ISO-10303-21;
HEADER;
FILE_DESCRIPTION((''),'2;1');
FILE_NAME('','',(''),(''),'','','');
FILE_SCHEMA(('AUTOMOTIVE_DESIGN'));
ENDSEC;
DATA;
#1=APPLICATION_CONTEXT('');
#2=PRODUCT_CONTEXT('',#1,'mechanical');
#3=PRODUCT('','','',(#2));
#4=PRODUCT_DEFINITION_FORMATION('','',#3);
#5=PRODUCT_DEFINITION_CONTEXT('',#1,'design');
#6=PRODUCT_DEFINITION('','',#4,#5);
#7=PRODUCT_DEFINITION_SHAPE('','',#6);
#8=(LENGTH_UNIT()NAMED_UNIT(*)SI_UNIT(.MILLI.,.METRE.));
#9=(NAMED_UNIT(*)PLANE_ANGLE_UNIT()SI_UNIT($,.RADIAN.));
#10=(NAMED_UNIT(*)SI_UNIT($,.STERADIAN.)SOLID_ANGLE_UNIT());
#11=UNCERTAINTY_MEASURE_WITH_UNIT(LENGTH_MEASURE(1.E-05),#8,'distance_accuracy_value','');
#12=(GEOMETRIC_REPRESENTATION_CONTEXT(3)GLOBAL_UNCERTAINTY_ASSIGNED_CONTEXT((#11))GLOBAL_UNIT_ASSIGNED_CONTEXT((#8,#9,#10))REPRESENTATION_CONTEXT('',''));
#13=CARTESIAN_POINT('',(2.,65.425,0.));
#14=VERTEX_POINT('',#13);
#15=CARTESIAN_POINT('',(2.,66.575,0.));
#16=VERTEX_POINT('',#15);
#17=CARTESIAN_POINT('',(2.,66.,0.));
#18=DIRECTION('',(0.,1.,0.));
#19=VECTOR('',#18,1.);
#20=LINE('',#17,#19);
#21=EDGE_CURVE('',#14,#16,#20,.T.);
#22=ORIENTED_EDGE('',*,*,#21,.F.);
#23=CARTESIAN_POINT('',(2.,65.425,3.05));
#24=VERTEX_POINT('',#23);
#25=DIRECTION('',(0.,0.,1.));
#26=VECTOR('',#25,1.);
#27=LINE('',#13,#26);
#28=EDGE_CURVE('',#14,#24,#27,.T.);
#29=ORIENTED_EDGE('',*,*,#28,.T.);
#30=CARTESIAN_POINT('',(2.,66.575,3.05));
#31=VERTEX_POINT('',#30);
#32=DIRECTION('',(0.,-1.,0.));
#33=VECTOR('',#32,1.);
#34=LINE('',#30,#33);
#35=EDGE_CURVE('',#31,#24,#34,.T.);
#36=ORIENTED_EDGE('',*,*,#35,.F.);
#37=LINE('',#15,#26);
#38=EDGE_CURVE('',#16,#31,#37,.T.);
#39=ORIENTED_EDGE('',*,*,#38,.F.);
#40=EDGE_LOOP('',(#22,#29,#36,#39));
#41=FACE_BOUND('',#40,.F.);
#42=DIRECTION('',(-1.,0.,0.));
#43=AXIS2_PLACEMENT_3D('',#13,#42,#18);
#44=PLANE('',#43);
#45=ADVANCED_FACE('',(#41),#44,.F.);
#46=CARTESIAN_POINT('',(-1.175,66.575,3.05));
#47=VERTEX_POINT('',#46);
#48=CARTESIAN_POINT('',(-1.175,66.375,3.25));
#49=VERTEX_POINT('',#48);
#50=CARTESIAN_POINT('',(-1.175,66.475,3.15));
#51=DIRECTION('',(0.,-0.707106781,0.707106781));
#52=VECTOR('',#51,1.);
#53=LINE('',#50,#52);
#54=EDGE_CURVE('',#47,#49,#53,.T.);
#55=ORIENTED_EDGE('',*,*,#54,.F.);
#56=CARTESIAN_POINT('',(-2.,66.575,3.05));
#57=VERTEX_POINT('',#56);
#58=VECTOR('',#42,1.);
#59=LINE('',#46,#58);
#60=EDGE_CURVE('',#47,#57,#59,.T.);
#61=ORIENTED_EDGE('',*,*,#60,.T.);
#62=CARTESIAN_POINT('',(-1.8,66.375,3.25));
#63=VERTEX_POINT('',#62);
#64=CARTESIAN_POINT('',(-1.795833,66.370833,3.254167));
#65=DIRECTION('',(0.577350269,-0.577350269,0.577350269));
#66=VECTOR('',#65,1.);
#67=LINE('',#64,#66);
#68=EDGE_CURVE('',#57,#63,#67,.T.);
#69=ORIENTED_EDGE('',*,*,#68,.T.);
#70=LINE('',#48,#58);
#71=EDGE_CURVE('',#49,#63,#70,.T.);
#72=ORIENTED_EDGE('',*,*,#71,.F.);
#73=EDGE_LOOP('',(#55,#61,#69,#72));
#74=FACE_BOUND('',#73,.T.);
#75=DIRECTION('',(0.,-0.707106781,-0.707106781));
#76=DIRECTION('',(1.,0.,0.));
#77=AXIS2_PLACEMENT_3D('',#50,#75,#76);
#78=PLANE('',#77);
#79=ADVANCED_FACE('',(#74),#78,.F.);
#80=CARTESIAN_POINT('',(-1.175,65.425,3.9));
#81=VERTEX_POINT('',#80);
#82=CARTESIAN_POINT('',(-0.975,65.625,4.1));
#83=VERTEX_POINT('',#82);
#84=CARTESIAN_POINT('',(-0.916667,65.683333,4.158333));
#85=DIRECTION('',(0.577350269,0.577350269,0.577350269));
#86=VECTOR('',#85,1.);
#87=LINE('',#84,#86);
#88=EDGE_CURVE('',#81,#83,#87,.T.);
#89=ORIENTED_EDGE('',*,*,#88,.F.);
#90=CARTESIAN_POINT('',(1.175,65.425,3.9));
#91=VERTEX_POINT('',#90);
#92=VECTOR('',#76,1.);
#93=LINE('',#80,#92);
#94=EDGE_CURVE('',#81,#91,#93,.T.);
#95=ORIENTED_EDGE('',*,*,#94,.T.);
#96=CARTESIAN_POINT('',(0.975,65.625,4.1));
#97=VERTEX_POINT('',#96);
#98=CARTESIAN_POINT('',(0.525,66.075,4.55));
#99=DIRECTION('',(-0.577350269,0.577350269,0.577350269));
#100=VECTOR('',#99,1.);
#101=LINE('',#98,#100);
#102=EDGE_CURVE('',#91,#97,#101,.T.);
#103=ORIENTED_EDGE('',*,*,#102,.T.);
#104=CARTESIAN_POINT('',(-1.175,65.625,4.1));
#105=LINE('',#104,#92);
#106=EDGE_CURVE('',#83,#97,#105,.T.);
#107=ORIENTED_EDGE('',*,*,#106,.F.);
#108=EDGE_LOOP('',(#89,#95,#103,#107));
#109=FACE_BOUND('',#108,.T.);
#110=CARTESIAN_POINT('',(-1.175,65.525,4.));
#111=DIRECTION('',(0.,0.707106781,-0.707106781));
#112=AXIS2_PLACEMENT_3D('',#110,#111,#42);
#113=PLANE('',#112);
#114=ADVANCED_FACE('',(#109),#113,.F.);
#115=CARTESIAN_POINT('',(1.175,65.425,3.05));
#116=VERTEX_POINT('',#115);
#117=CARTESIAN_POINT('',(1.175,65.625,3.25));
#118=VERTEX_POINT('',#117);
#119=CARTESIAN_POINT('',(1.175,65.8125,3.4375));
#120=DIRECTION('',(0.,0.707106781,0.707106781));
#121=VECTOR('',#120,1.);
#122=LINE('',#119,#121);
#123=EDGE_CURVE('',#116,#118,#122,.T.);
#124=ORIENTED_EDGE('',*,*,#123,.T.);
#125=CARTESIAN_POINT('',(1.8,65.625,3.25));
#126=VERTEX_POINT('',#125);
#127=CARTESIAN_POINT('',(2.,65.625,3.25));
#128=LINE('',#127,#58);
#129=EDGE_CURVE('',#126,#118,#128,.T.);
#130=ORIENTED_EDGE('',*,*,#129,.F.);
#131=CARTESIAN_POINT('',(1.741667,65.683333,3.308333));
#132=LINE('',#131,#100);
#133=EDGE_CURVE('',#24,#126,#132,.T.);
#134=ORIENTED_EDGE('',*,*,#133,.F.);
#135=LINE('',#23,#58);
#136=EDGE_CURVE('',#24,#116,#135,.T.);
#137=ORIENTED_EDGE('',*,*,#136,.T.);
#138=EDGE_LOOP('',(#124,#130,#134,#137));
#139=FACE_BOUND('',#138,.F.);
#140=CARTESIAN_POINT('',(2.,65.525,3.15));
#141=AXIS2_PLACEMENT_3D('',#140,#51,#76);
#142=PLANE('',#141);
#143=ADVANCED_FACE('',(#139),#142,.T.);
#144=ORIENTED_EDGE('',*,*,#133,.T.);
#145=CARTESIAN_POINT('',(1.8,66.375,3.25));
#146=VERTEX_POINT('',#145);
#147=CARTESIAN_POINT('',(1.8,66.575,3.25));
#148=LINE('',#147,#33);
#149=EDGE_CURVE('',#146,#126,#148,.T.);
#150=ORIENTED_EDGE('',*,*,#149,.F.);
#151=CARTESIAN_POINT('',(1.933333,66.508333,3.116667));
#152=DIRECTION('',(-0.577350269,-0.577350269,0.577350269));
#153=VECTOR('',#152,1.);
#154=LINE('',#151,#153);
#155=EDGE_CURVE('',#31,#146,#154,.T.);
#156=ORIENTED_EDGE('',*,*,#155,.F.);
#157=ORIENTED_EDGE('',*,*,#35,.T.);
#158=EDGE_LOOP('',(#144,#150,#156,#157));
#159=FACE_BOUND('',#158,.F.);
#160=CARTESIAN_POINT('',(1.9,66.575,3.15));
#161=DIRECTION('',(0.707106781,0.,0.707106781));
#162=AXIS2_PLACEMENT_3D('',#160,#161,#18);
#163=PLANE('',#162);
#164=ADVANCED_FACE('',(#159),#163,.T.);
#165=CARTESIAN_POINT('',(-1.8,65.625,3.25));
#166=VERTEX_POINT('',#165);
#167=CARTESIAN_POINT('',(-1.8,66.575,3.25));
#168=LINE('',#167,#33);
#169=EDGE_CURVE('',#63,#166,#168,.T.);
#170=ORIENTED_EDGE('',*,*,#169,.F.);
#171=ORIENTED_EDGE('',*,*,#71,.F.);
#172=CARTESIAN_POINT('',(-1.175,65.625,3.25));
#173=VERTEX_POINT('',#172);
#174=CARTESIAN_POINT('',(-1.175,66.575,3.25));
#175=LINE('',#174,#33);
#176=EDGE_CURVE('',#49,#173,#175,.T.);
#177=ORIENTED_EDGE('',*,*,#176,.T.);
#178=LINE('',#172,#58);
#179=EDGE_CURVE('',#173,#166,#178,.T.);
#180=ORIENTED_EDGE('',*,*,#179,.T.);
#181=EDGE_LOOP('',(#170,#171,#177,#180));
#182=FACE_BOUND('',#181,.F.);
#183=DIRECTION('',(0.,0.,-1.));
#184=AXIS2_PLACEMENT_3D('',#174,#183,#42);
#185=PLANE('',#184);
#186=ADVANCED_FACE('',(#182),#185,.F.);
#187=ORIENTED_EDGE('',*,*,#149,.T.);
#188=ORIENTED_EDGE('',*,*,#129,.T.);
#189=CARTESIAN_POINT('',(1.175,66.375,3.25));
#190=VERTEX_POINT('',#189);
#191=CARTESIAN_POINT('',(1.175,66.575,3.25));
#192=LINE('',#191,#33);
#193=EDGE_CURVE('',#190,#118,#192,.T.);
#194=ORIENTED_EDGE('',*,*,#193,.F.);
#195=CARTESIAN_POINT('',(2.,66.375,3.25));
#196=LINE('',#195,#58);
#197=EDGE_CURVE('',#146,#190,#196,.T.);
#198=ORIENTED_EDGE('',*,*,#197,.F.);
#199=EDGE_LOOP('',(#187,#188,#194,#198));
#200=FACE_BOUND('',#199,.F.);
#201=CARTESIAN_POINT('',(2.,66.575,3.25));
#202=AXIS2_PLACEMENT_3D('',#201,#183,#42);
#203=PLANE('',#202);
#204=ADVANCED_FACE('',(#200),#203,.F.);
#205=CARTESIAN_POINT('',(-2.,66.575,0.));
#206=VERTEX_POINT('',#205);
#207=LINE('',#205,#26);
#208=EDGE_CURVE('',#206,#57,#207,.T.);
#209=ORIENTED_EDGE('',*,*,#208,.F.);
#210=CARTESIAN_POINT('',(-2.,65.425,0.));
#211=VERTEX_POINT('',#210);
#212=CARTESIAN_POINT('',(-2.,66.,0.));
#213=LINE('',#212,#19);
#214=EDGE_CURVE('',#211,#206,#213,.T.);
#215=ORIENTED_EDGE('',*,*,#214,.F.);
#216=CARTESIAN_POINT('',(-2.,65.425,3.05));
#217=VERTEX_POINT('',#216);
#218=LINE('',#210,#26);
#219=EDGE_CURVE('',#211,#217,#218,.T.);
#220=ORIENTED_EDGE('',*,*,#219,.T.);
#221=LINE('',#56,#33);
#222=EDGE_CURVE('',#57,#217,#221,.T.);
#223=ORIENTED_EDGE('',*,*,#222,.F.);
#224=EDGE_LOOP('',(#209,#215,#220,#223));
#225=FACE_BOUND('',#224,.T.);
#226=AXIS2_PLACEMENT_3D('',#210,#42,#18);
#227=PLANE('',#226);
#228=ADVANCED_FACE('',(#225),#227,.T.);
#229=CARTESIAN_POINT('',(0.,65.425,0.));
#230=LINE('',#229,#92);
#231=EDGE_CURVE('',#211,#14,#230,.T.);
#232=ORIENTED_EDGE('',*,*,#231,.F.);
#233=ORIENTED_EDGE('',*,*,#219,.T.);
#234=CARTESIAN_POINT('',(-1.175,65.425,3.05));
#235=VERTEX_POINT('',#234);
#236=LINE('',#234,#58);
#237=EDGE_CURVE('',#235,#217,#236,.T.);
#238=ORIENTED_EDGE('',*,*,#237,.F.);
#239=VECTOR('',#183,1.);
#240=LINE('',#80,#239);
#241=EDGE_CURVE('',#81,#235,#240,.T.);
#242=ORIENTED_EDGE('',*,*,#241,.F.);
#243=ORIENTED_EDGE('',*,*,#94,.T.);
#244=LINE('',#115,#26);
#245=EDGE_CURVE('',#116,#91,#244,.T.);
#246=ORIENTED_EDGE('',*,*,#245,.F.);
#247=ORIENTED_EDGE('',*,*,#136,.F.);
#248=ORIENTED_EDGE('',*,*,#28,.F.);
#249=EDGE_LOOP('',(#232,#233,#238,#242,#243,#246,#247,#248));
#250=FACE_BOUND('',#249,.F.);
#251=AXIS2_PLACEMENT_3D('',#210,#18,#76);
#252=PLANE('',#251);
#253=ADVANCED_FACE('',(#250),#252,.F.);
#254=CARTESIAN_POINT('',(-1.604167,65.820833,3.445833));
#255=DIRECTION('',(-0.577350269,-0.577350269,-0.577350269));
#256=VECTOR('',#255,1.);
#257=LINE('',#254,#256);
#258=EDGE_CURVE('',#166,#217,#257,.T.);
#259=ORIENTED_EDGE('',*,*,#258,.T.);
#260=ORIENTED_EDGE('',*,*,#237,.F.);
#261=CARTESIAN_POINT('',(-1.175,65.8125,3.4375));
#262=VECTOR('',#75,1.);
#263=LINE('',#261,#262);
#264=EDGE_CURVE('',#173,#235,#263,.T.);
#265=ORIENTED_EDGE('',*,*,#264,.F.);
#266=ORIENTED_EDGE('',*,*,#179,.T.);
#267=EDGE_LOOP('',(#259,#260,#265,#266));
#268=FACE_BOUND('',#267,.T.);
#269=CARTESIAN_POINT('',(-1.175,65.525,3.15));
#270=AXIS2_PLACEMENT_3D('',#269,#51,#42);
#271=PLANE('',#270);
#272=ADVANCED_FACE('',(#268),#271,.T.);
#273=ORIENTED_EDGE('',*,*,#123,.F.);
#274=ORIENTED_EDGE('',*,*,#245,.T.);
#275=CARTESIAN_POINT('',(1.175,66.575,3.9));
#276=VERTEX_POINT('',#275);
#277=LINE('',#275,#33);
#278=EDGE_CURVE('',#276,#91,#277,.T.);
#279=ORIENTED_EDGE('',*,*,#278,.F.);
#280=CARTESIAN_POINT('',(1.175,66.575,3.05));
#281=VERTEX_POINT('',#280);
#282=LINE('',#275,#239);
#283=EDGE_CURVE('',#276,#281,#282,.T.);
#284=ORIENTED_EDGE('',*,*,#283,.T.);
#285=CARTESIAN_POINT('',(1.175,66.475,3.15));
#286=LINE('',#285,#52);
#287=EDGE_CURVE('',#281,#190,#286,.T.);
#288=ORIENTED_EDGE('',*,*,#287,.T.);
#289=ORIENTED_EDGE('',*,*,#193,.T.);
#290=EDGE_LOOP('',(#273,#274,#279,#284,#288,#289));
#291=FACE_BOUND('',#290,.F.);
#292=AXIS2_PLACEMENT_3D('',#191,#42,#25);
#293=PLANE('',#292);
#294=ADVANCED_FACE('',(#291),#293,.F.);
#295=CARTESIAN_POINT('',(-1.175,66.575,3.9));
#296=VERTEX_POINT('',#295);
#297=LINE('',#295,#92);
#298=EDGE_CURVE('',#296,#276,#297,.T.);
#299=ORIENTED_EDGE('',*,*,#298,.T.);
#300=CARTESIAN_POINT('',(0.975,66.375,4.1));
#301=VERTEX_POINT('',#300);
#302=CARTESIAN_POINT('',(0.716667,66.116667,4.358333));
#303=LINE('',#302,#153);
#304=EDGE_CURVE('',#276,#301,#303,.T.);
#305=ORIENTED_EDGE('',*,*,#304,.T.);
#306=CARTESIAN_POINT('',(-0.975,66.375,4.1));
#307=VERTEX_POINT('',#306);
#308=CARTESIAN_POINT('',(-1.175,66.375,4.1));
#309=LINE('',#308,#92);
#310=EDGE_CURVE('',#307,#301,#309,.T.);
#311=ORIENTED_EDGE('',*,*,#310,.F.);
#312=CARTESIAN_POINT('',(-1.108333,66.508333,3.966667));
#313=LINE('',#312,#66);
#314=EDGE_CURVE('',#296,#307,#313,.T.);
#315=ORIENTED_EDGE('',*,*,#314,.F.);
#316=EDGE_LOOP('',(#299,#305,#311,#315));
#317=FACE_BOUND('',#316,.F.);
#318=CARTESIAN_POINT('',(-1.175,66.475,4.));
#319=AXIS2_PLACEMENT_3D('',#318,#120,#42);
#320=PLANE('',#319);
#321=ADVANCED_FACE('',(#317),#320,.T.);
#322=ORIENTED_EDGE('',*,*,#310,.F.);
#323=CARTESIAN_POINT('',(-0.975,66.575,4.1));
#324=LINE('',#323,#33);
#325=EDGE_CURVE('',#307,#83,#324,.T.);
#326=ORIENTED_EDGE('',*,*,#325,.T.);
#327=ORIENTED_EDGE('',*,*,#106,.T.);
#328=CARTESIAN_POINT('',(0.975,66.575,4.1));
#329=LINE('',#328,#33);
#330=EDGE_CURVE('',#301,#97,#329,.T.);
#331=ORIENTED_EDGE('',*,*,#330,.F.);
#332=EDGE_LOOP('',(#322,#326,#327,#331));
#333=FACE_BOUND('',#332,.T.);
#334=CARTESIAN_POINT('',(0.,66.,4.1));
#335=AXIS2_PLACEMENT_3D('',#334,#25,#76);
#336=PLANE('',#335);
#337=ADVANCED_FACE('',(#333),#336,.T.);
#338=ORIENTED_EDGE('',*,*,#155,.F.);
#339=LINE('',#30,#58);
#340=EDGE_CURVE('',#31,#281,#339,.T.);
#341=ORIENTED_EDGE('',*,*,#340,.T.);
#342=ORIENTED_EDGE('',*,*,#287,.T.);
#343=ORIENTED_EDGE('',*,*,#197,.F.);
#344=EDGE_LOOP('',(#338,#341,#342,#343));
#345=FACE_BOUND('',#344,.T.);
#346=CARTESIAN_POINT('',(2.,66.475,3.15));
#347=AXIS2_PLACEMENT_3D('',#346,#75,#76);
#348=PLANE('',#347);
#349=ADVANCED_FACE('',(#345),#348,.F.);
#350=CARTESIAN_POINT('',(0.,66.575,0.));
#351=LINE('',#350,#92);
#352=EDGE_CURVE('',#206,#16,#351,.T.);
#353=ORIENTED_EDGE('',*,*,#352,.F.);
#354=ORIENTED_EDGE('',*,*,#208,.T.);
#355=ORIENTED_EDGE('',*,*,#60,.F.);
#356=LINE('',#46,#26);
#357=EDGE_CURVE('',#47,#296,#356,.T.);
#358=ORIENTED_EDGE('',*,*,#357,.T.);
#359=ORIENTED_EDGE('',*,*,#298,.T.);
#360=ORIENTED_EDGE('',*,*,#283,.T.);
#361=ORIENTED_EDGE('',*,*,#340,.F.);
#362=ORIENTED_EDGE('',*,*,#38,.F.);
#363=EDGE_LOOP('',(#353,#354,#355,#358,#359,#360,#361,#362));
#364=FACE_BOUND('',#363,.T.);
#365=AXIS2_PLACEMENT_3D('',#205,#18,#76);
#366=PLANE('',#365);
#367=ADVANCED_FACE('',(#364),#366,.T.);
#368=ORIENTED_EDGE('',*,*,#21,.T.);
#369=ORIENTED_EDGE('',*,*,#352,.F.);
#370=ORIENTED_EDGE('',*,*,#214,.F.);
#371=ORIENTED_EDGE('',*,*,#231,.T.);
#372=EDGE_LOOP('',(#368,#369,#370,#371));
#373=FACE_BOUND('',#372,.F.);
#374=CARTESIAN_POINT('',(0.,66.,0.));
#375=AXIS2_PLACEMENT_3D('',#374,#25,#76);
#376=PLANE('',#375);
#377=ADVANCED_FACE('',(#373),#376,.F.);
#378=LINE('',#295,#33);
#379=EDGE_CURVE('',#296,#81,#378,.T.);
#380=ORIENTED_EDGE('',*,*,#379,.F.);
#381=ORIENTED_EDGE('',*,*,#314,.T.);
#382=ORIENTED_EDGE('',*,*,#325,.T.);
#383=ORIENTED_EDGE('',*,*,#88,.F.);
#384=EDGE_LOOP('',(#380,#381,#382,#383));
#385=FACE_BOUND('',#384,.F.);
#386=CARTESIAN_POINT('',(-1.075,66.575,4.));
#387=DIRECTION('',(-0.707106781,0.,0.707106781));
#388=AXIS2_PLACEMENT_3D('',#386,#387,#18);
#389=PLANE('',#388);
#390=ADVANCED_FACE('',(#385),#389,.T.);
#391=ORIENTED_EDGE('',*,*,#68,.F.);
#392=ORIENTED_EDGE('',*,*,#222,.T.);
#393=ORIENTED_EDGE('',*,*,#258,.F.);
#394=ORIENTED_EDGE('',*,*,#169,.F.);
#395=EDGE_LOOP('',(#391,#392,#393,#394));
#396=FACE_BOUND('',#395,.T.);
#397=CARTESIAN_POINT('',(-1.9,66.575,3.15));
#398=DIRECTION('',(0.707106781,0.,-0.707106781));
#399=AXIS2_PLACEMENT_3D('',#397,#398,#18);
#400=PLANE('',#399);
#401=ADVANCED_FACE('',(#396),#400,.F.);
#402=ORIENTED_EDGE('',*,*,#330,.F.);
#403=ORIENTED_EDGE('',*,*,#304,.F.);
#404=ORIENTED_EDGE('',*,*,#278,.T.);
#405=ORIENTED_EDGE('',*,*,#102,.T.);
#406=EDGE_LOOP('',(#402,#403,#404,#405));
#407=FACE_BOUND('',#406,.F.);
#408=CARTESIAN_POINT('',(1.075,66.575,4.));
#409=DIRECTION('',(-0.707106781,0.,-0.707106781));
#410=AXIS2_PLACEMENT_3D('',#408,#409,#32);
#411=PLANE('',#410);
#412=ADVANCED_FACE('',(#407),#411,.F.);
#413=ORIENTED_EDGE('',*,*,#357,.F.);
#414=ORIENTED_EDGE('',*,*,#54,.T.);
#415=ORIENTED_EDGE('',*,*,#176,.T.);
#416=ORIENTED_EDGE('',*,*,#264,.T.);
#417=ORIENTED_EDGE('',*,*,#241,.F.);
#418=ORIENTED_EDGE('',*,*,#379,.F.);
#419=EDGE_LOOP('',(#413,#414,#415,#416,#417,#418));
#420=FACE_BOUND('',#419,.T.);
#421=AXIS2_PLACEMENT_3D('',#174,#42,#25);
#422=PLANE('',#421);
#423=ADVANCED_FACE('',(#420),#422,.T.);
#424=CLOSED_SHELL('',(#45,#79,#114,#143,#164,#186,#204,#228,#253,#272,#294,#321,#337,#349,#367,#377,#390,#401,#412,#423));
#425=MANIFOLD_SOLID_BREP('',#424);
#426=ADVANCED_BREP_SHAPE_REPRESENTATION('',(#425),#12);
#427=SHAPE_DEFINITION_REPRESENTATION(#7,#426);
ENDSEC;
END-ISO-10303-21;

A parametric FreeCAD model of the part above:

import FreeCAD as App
import Part
import Sketcher
from FreeCAD import Vector
Q = App.Units.Quantity


def edges_at(feature, points):
    """Names of the edges that pass closest to the given points."""
    edges = feature.Shape.Edges
    near = lambda p: min(range(len(edges)), key=lambda i: edges[i].distToShape(Part.Vertex(*p))[0])
    return sorted({f"Edge{near(p) + 1}" for p in points})


def add_polygon(sketch, points):
    """Adds a closed chain of lines whose ends are joined by coincident constraints."""
    first, n = sketch.GeometryCount, len(points)
    for a, b in zip(points, points[1:] + points[:1]):
        sketch.addGeometry(Part.LineSegment(App.Vector(*a, 0), App.Vector(*b, 0)), False)
    for i in range(n):
        sketch.addConstraint(Sketcher.Constraint("Coincident", first + i, 2, first + (i + 1) % n, 1))

doc = App.newDocument("Part")
body = doc.addObject("PartDesign::Body", "Body")

# Sketch on XY plane
sketch1 = doc.addObject("Sketcher::SketchObject", "Sketch")
body.addObject(sketch1)
sketch1.AttachmentSupport = (doc.XY_Plane, [""])
sketch1.MapMode = "FlatFace"
add_polygon(sketch1, [(-2, 0.6), (-2, -0.6), (2, -0.6), (2, 0.6)])  # lines 0-3
sketch1.addConstraint(Sketcher.Constraint("Vertical", 0))
sketch1.addConstraint(Sketcher.Constraint("Horizontal", 1))
sketch1.addConstraint(Sketcher.Constraint("Vertical", 2))
sketch1.addConstraint(Sketcher.Constraint("Horizontal", 3))
sketch1.addConstraint(Sketcher.Constraint("Symmetric", 0, 2, 2, 2, -1, 1))
sketch1.addConstraint(Sketcher.Constraint("DistanceX", 1, 1, 1, 2, Q("4 mm")))
sketch1.addConstraint(Sketcher.Constraint("DistanceY", 0, 2, 0, 1, Q("1.15 mm")))
pad1 = doc.addObject("PartDesign::Pad", "Pad")
body.addObject(pad1)
pad1.Profile = sketch1
pad1.Length = 4.1

# Sketch on XZ plane
sketch2 = doc.addObject("Sketcher::SketchObject", "Sketch001")
body.addObject(sketch2)
sketch2.AttachmentSupport = (doc.XZ_Plane, [""])
sketch2.MapMode = "FlatFace"
sketch2.AttachmentOffset = App.Placement(Vector(0, 0, -0.575), App.Rotation())
add_polygon(sketch2, [(2, 4.1), (2, 3.2), (1.2, 3.2), (1.2, 4.1)])  # lines 0-3
add_polygon(sketch2, [(-1.2, 4.1), (-1.2, 3.2), (-2, 3.2), (-2, 4.1)])  # lines 4-7
sketch2.addConstraint(Sketcher.Constraint("Vertical", 0))
sketch2.addConstraint(Sketcher.Constraint("Horizontal", 1))
sketch2.addConstraint(Sketcher.Constraint("Vertical", 2))
sketch2.addConstraint(Sketcher.Constraint("Horizontal", 3))
sketch2.addConstraint(Sketcher.Constraint("Vertical", 4))
sketch2.addConstraint(Sketcher.Constraint("Horizontal", 5))
sketch2.addConstraint(Sketcher.Constraint("Vertical", 6))
sketch2.addConstraint(Sketcher.Constraint("Horizontal", 7))
sketch2.addConstraint(Sketcher.Constraint("Symmetric", 1, 2, 4, 2, -2))
sketch2.addConstraint(Sketcher.Constraint("Symmetric", 3, 2, 6, 2, -2))
sketch2.addConstraint(Sketcher.Constraint("DistanceX", -1, 1, 0, 2, Q("2 mm")))
sketch2.addConstraint(Sketcher.Constraint("DistanceY", 0, 2, 0, 1, Q("0.85 mm")))
sketch2.addConstraint(Sketcher.Constraint("DistanceY", -1, 1, 2, 2, Q("4.1 mm")))
sketch2.addConstraint(Sketcher.Constraint("DistanceX", 1, 2, 1, 1, Q("0.825 mm")))
pocket1 = doc.addObject("PartDesign::Pocket", "Pocket")
body.addObject(pocket1)
pocket1.Profile = sketch2
pocket1.Length = 5
pocket1.Reversed = True
doc.recompute()

chamfer = doc.addObject("PartDesign::Chamfer", "Chamfer")
body.addObject(chamfer)
chamfer.Base = (pocket1, edges_at(pocket1, [
    (0, 0.575, 4.1),
    (0, -0.575, 4.1),
    (1.587, 0.575, 3.25),
    (-1.587, 0.575, 3.25),
    (-1.587, -0.575, 3.25),
    (1.587, -0.575, 3.25),
    (2, 0, 3.25),
    (-2, 0, 3.25),
    (1.175, 0, 4.1),
    (-1.175, 0, 4.1),
]))
chamfer.Size = 0.2
body2 = doc.addObject("PartDesign::Body", "Body001")
doc.recompute()

body.Placement = App.Placement(Vector(0, 66, 0), App.Rotation(Vector(0, 0, 1), 0))
boolean = doc.addObject("PartDesign::Boolean", "Boolean")
body2.addObject(boolean)
boolean.Type = "Fuse"
boolean.addObjects([body])

doc.recompute()
